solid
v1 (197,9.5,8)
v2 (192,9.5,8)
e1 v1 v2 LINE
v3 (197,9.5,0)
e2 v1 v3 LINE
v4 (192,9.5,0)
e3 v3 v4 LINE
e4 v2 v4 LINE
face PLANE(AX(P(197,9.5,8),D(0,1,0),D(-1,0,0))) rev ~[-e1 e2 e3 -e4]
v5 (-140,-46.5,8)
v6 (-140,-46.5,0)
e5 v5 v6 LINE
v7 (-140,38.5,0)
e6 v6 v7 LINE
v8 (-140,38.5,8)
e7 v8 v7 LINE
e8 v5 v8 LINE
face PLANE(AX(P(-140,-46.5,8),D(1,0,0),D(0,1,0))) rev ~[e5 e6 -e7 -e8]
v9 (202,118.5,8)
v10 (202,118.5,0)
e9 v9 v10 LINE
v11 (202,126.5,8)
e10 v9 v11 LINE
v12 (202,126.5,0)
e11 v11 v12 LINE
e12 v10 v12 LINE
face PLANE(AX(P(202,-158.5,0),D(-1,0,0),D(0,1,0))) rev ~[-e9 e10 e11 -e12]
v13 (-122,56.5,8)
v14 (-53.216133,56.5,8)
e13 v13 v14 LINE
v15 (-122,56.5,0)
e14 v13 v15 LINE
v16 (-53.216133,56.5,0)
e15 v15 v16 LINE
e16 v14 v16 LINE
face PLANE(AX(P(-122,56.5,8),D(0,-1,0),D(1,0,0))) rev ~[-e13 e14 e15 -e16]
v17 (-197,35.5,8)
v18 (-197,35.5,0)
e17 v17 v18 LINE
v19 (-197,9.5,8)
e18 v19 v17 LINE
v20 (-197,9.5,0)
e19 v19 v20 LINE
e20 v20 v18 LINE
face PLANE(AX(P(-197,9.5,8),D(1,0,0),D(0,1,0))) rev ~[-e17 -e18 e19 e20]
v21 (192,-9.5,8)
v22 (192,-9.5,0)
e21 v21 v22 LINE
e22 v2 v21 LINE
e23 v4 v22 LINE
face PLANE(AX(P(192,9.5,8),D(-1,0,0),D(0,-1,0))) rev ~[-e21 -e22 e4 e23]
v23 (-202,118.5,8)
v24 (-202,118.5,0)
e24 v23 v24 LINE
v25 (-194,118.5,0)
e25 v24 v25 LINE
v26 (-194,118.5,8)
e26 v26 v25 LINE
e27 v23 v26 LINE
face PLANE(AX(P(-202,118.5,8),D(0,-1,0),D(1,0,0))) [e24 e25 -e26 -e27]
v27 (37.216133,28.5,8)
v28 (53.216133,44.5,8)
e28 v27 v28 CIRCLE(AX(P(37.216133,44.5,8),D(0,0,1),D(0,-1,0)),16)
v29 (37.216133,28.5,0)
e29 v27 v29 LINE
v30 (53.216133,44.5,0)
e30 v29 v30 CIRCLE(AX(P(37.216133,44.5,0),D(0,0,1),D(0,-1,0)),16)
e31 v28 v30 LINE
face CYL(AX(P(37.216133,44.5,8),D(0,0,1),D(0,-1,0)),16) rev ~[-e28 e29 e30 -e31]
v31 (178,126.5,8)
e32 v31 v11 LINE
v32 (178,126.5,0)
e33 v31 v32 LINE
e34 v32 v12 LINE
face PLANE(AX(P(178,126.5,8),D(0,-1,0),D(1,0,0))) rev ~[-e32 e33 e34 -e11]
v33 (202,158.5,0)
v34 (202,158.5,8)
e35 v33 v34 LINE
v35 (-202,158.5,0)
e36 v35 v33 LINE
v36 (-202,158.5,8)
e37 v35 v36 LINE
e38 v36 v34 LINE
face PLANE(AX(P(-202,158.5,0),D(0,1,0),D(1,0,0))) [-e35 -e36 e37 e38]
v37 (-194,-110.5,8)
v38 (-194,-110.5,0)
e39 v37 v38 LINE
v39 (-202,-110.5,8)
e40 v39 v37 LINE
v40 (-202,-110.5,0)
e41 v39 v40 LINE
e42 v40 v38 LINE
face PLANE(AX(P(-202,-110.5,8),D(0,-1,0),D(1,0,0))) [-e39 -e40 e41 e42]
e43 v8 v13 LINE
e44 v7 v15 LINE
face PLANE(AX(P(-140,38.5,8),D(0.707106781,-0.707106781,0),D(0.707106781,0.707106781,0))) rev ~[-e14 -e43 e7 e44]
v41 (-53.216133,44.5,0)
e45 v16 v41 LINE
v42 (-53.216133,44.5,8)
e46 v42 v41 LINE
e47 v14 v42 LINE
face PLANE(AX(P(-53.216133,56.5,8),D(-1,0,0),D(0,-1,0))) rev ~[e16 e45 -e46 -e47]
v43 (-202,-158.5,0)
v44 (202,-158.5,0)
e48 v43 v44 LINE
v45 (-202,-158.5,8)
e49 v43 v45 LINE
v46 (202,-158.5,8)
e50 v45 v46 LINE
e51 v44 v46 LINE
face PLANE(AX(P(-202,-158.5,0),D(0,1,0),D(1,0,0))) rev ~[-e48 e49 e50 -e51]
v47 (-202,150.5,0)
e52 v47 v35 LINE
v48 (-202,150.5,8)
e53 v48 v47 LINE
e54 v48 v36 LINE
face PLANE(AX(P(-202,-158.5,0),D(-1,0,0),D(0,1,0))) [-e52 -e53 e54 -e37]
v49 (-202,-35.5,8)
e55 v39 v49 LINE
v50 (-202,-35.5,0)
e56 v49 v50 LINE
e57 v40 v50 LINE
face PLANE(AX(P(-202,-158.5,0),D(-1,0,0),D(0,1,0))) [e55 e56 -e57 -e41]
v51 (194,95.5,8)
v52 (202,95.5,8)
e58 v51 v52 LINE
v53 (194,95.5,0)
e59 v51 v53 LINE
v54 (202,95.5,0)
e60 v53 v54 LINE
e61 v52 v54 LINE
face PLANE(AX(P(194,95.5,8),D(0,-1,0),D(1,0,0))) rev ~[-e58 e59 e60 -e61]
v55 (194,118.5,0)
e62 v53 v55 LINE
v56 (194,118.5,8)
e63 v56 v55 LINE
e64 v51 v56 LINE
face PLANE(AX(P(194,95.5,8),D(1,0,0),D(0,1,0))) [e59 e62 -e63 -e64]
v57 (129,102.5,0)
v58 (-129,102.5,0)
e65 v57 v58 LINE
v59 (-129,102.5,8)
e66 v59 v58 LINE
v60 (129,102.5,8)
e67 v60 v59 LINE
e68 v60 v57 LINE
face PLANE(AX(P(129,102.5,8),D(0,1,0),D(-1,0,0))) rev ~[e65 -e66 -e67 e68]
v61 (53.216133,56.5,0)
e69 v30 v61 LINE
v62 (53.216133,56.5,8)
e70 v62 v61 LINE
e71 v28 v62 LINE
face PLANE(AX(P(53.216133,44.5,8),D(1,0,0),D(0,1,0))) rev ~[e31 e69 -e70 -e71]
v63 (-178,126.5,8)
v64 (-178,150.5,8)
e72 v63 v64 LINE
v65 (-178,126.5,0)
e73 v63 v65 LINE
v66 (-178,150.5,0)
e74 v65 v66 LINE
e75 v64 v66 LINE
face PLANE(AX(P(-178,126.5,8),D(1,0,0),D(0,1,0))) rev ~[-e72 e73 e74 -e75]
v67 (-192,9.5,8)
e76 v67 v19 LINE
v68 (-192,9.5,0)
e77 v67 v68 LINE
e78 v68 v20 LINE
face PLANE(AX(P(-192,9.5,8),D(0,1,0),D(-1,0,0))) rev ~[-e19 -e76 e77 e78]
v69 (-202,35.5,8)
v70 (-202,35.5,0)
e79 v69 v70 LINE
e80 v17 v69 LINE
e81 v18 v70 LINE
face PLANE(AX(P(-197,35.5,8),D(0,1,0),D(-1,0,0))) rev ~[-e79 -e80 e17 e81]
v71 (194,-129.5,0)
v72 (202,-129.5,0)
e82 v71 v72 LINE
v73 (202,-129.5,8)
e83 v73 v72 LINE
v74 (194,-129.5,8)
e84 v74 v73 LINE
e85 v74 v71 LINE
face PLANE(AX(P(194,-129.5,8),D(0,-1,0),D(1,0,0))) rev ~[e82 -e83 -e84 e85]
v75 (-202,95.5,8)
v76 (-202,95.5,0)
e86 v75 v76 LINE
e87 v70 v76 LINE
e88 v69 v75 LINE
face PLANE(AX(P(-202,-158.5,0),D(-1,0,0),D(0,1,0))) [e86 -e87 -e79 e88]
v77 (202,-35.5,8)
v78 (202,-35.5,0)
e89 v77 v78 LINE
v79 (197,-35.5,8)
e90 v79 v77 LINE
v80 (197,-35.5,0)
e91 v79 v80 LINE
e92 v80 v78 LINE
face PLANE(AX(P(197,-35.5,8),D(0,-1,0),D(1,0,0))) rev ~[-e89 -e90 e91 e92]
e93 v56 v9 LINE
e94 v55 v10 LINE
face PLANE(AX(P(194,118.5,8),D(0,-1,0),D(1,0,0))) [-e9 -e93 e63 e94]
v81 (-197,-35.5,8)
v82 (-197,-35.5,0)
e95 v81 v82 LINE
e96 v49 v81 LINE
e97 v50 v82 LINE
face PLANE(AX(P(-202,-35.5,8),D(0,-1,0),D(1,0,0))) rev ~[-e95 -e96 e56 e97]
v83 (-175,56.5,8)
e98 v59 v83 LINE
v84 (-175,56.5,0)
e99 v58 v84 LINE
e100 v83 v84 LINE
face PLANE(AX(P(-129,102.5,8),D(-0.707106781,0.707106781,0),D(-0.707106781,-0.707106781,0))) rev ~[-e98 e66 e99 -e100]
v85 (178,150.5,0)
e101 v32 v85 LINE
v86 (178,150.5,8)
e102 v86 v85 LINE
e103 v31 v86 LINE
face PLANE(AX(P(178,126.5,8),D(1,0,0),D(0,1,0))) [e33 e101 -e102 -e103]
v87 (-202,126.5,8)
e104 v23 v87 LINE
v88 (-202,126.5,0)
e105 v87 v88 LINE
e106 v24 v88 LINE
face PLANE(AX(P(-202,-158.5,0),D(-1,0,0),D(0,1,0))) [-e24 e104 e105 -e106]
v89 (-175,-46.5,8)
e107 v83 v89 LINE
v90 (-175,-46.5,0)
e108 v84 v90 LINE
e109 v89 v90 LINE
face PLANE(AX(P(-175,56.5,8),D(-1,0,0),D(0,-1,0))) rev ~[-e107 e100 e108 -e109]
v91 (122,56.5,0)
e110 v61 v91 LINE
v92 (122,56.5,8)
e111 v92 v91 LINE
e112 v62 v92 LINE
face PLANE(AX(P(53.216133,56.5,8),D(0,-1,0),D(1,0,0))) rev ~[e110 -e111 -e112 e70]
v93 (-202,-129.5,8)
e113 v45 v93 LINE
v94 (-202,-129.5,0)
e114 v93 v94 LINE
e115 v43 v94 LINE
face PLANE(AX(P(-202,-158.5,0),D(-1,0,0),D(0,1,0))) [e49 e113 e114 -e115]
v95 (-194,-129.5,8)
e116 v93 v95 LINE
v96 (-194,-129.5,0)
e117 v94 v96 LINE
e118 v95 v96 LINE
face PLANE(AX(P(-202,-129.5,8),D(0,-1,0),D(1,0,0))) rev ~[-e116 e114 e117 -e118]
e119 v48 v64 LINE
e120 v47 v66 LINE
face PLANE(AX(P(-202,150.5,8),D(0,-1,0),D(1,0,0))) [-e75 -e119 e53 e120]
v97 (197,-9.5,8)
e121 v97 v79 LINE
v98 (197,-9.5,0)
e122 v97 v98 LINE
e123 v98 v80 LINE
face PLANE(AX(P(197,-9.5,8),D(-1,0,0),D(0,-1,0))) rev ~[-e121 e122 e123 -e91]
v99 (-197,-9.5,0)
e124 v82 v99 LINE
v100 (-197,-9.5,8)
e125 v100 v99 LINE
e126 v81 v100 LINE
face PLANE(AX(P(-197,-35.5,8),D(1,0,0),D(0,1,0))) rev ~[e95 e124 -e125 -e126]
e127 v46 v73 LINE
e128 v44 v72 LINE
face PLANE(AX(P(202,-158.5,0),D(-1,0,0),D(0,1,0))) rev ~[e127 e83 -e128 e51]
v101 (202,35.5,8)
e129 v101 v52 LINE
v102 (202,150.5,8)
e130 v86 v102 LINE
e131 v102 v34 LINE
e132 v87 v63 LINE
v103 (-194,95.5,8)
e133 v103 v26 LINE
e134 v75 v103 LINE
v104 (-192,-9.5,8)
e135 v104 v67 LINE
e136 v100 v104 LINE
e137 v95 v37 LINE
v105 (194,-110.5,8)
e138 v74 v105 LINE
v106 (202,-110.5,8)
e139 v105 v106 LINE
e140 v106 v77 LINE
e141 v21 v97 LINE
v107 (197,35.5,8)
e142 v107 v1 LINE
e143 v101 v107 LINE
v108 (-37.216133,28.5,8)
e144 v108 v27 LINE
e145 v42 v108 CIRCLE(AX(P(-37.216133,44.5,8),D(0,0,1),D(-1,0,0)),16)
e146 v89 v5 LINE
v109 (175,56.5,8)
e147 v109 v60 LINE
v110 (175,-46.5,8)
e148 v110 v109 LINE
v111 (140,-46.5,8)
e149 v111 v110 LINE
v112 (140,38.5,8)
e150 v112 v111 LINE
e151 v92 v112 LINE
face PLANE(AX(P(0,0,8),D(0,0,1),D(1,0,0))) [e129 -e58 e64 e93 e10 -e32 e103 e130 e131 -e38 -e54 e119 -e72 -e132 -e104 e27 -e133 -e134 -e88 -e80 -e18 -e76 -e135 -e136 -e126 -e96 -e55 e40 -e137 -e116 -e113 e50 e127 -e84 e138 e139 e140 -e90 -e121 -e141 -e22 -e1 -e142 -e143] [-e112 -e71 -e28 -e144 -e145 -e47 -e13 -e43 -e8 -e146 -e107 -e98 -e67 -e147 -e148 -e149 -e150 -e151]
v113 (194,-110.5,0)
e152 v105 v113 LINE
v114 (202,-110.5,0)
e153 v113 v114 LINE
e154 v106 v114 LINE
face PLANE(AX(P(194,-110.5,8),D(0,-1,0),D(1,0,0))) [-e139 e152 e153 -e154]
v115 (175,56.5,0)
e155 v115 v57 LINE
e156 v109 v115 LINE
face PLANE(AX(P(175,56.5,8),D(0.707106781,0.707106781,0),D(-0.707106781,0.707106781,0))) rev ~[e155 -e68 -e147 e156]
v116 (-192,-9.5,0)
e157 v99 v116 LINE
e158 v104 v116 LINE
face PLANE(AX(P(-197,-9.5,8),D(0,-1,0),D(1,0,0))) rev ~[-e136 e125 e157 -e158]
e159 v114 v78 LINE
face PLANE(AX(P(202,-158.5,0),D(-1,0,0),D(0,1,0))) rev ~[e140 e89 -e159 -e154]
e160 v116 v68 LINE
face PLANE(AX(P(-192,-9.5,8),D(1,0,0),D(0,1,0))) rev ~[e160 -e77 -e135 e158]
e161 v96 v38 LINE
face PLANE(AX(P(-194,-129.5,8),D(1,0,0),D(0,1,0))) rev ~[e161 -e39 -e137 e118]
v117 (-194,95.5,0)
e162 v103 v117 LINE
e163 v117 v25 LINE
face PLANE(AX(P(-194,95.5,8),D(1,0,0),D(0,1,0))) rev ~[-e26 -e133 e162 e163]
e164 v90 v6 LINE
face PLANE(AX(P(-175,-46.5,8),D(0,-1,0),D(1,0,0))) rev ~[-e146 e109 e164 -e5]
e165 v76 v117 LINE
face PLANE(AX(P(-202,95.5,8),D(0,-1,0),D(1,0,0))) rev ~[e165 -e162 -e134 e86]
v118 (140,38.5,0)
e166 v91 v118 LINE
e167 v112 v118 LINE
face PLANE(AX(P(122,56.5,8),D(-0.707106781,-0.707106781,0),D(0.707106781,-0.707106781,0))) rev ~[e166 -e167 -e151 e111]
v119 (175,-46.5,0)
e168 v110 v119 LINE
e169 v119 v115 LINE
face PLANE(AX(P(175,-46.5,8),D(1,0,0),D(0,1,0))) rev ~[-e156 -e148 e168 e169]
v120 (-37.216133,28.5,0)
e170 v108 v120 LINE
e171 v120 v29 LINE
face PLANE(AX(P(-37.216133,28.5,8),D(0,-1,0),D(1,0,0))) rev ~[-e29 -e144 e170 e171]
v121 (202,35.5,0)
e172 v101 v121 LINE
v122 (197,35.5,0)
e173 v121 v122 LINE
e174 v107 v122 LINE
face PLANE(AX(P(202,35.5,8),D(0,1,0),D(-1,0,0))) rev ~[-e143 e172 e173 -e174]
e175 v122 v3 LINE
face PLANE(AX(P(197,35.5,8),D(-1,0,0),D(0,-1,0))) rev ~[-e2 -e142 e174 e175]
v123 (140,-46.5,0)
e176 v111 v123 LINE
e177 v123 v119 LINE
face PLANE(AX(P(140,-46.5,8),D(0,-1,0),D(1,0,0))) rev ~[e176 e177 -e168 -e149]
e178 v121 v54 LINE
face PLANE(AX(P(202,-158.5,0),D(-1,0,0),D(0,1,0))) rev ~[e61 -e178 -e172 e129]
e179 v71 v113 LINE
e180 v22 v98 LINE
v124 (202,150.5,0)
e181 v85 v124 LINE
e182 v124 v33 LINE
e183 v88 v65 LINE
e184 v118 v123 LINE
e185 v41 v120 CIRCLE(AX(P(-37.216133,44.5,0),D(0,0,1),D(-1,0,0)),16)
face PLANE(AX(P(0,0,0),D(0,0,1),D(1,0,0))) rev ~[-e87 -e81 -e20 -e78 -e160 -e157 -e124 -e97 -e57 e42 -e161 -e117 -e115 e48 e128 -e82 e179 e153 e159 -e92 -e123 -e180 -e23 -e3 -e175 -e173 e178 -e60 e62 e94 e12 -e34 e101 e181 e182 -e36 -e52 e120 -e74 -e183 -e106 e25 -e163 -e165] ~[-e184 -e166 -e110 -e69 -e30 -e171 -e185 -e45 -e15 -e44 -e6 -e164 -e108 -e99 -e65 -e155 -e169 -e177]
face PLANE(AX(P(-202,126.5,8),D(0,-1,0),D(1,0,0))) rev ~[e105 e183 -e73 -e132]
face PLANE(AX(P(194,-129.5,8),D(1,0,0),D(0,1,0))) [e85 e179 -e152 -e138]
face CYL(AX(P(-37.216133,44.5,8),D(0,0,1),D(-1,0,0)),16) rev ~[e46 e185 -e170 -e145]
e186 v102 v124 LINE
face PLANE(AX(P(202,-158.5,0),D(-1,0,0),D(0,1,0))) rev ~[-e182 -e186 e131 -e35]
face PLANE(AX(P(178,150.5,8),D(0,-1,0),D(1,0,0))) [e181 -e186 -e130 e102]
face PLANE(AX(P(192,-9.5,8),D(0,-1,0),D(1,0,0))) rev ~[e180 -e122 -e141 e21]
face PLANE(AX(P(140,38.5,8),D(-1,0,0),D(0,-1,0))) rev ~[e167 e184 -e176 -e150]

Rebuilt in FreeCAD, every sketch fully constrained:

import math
import FreeCAD as App
import Part
import Sketcher


def add_polygon(sketch, points):
    """Adds a closed chain of lines whose ends are joined by coincident constraints."""
    first, n = sketch.GeometryCount, len(points)
    for a, b in zip(points, points[1:] + points[:1]):
        sketch.addGeometry(Part.LineSegment(App.Vector(*a, 0), App.Vector(*b, 0)), False)
    for i in range(n):
        sketch.addConstraint(Sketcher.Constraint("Coincident", first + i, 2, first + (i + 1) % n, 1))

doc = App.newDocument("Part")
body = doc.addObject("PartDesign::Body", "Body")

# Sketch on XY plane
sketch1 = doc.addObject("Sketcher::SketchObject", "Sketch")
body.addObject(sketch1)
sketch1.AttachmentSupport = (doc.XY_Plane, [""])
sketch1.MapMode = "FlatFace"
add_polygon(sketch1, [(-202, 158), (-202, -158), (202, -158), (202, 158)])  # lines 0-3
sketch1.addConstraint([
    Sketcher.Constraint("Vertical", 0),
    Sketcher.Constraint("Horizontal", 1),
    Sketcher.Constraint("Vertical", 2),
    Sketcher.Constraint("Horizontal", 3),
    Sketcher.Constraint("Symmetric", 0, 2, 2, 2, -1, 1),
    Sketcher.Constraint("DistanceX", 1, 1, 1, 2, 404.0),
    Sketcher.Constraint("DistanceY", 0, 2, 0, 1, 317.0),
])
pad1 = doc.addObject("PartDesign::Pad", "Pad")
body.addObject(pad1)
pad1.Profile = sketch1
pad1.Length = 8

# Sketch on XY plane
sketch2 = doc.addObject("Sketcher::SketchObject", "Sketch001")
body.addObject(sketch2)
sketch2.AttachmentSupport = (doc.XY_Plane, [""])
sketch2.MapMode = "FlatFace"
sketch2.AttachmentOffset = App.Placement(App.Vector(0, 0, 8), App.Rotation())
add_polygon(sketch2, [(-202, -110), (-202, -130), (-194, -130), (-194, -110)])  # lines 0-3
add_polygon(sketch2, [(-202, 36), (-202, -36), (-197, -36), (-197, -10), (-192, -10), (-192, 10), (-197, 10), (-197, 36)])  # lines 4-11
add_polygon(sketch2, [(-202, 118), (-202, 96), (-194, 96), (-194, 118)])  # lines 12-15
add_polygon(sketch2, [(-202, 150), (-202, 126), (-178, 126), (-178, 150)])  # lines 16-19
add_polygon(sketch2, [(192, -10), (197, -10), (197, -36), (202, -36), (202, 36), (197, 36), (197, 10), (192, 10)])  # lines 20-27
add_polygon(sketch2, [(194, -110), (194, -130), (202, -130), (202, -110)])  # lines 28-31
add_polygon(sketch2, [(194, 118), (194, 96), (202, 96), (202, 118)])  # lines 32-35
add_polygon(sketch2, [(178, 150), (178, 126), (202, 126), (202, 150)])  # lines 36-39
sketch2.addConstraint([
    Sketcher.Constraint("Vertical", 0),
    Sketcher.Constraint("Horizontal", 1),
    Sketcher.Constraint("Vertical", 2),
    Sketcher.Constraint("Horizontal", 3),
    Sketcher.Constraint("Vertical", 4),
    Sketcher.Constraint("Horizontal", 5),
    Sketcher.Constraint("Vertical", 6),
    Sketcher.Constraint("Horizontal", 7),
    Sketcher.Constraint("Vertical", 8),
    Sketcher.Constraint("Horizontal", 9),
    Sketcher.Constraint("Vertical", 10),
    Sketcher.Constraint("Horizontal", 11),
    Sketcher.Constraint("Vertical", 12),
    Sketcher.Constraint("Horizontal", 13),
    Sketcher.Constraint("Vertical", 14),
    Sketcher.Constraint("Horizontal", 15),
    Sketcher.Constraint("Vertical", 16),
    Sketcher.Constraint("Horizontal", 17),
    Sketcher.Constraint("Vertical", 18),
    Sketcher.Constraint("Horizontal", 19),
    Sketcher.Constraint("Horizontal", 20),
    Sketcher.Constraint("Vertical", 21),
    Sketcher.Constraint("Horizontal", 22),
    Sketcher.Constraint("Vertical", 23),
    Sketcher.Constraint("Horizontal", 24),
    Sketcher.Constraint("Vertical", 25),
    Sketcher.Constraint("Horizontal", 26),
    Sketcher.Constraint("Vertical", 27),
    Sketcher.Constraint("Vertical", 28),
    Sketcher.Constraint("Horizontal", 29),
    Sketcher.Constraint("Vertical", 30),
    Sketcher.Constraint("Horizontal", 31),
    Sketcher.Constraint("Vertical", 32),
    Sketcher.Constraint("Horizontal", 33),
    Sketcher.Constraint("Vertical", 34),
    Sketcher.Constraint("Horizontal", 35),
    Sketcher.Constraint("Vertical", 36),
    Sketcher.Constraint("Horizontal", 37),
    Sketcher.Constraint("Vertical", 38),
    Sketcher.Constraint("Horizontal", 39),
    Sketcher.Constraint("Symmetric", 9, 2, 20, 2, -1, 1),
    Sketcher.Constraint("Symmetric", 11, 2, 22, 2, -1, 1),
    Sketcher.Constraint("Symmetric", 5, 2, 24, 2, -1, 1),
    Sketcher.Constraint("Symmetric", 7, 2, 26, 2, -1, 1),
    Sketcher.Constraint("Symmetric", 6, 2, 20, 2, -2),
    Sketcher.Constraint("Symmetric", 1, 2, 28, 2, -2),
    Sketcher.Constraint("Symmetric", 3, 2, 30, 2, -2),
    Sketcher.Constraint("Symmetric", 13, 2, 32, 2, -2),
    Sketcher.Constraint("Symmetric", 15, 2, 34, 2, -2),
    Sketcher.Constraint("Symmetric", 17, 2, 36, 2, -2),
    Sketcher.Constraint("Symmetric", 19, 2, 38, 2, -2),
    Sketcher.Constraint("Horizontal", 5, 2, 21, 2),
    Sketcher.Constraint("Vertical", 3, 2, 4, 2),
    Sketcher.Constraint("Vertical", 11, 2, 12, 2),
    Sketcher.Constraint("Vertical", 2, 2, 13, 2),
    Sketcher.Constraint("Vertical", 15, 2, 16, 2),
    Sketcher.Constraint("Equal", 5, 7),
    Sketcher.Constraint("Equal", 2, 8),
    Sketcher.Constraint("Equal", 39, 16),
    Sketcher.Constraint("DistanceX", 1, 1, 1, 2, 8.0),
    Sketcher.Constraint("DistanceX", 5, 1, 5, 2, 5.0),
    Sketcher.Constraint("DistanceX", 17, 1, 17, 2, 24.0),
    Sketcher.Constraint("DistanceY", 0, 2, 0, 1, 19.0),
    Sketcher.Constraint("DistanceY", 4, 2, 4, 1, 71.0),
    Sketcher.Constraint("DistanceY", 12, 2, 12, 1, 23.0),
    Sketcher.Constraint("DistanceX", 0, 2, -1, 1, 202.0),
    Sketcher.Constraint("DistanceY", 3, 2, 4, 2, 75.0),
    Sketcher.Constraint("DistanceY", 11, 2, 12, 2, 60.0),
    Sketcher.Constraint("DistanceY", 15, 2, 16, 2, 8.0),
])
pocket1 = doc.addObject("PartDesign::Pocket", "Pocket")
body.addObject(pocket1)
pocket1.Profile = sketch2
pocket1.Length = 8

# Sketch on XY plane
sketch3 = doc.addObject("Sketcher::SketchObject", "Sketch002")
body.addObject(sketch3)
sketch3.AttachmentSupport = (doc.XY_Plane, [""])
sketch3.MapMode = "FlatFace"
sketch3.AttachmentOffset = App.Placement(App.Vector(0, 0, 8), App.Rotation())
sketch3.addGeometry([
    Part.LineSegment(App.Vector(-175, 56, 0), App.Vector(-175, -46, 0)),  # 0
    Part.LineSegment(App.Vector(-175, -46, 0), App.Vector(-140, -46, 0)),  # 1
    Part.LineSegment(App.Vector(-140, -46, 0), App.Vector(-140, 38, 0)),  # 2
    Part.LineSegment(App.Vector(-140, 38, 0), App.Vector(-122, 56, 0)),  # 3
    Part.LineSegment(App.Vector(-122, 56, 0), App.Vector(-53, 56, 0)),  # 4
    Part.LineSegment(App.Vector(-53, 56, 0), App.Vector(-53, 44, 0)),  # 5
    Part.ArcOfCircle(Part.Circle(App.Vector(-37, 44, 0), App.Vector(0, 0, 1), 16), math.radians(180), math.radians(270)),  # 6
    Part.LineSegment(App.Vector(-37, 28, 0), App.Vector(37, 28, 0)),  # 7
    Part.ArcOfCircle(Part.Circle(App.Vector(37, 44, 0), App.Vector(0, 0, 1), 16), math.radians(-90), math.radians(0)),  # 8
    Part.LineSegment(App.Vector(53, 44, 0), App.Vector(53, 56, 0)),  # 9
    Part.LineSegment(App.Vector(53, 56, 0), App.Vector(122, 56, 0)),  # 10
    Part.LineSegment(App.Vector(122, 56, 0), App.Vector(140, 38, 0)),  # 11
    Part.LineSegment(App.Vector(140, 38, 0), App.Vector(140, -46, 0)),  # 12
    Part.LineSegment(App.Vector(140, -46, 0), App.Vector(175, -46, 0)),  # 13
    Part.LineSegment(App.Vector(175, -46, 0), App.Vector(175, 56, 0)),  # 14
    Part.LineSegment(App.Vector(175, 56, 0), App.Vector(129, 102, 0)),  # 15
    Part.LineSegment(App.Vector(129, 102, 0), App.Vector(-129, 102, 0)),  # 16
    Part.LineSegment(App.Vector(-129, 102, 0), App.Vector(-175, 56, 0)),  # 17
], False)
sketch3.addConstraint([
    Sketcher.Constraint("Coincident", 0, 2, 1, 1),
    Sketcher.Constraint("Coincident", 1, 2, 2, 1),
    Sketcher.Constraint("Coincident", 2, 2, 3, 1),
    Sketcher.Constraint("Coincident", 3, 2, 4, 1),
    Sketcher.Constraint("Coincident", 4, 2, 5, 1),
    Sketcher.Constraint("Tangent", 5, 2, 6, 1),
    Sketcher.Constraint("Tangent", 6, 2, 7, 1),
    Sketcher.Constraint("Tangent", 7, 2, 8, 1),
    Sketcher.Constraint("Tangent", 8, 2, 9, 1),
    Sketcher.Constraint("Coincident", 9, 2, 10, 1),
    Sketcher.Constraint("Coincident", 10, 2, 11, 1),
    Sketcher.Constraint("Coincident", 11, 2, 12, 1),
    Sketcher.Constraint("Coincident", 12, 2, 13, 1),
    Sketcher.Constraint("Coincident", 13, 2, 14, 1),
    Sketcher.Constraint("Coincident", 14, 2, 15, 1),
    Sketcher.Constraint("Coincident", 15, 2, 16, 1),
    Sketcher.Constraint("Coincident", 16, 2, 17, 1),
    Sketcher.Constraint("Coincident", 17, 2, 0, 1),
    Sketcher.Constraint("Vertical", 0),
    Sketcher.Constraint("Horizontal", 1),
    Sketcher.Constraint("Vertical", 2),
    Sketcher.Constraint("Horizontal", 4),
    Sketcher.Constraint("Vertical", 5),
    Sketcher.Constraint("Horizontal", 7),
    Sketcher.Constraint("Vertical", 9),
    Sketcher.Constraint("Horizontal", 10),
    Sketcher.Constraint("Vertical", 12),
    Sketcher.Constraint("Horizontal", 13),
    Sketcher.Constraint("Vertical", 14),
    Sketcher.Constraint("Horizontal", 16),
    Sketcher.Constraint("Equal", 6, 8),
    Sketcher.Constraint("Symmetric", 4, 2, 9, 2, -2),
    Sketcher.Constraint("Symmetric", 2, 2, 11, 2, -2),
    Sketcher.Constraint("Symmetric", 0, 2, 13, 2, -2),
    Sketcher.Constraint("Perpendicular", 3, 11),
    Sketcher.Constraint("Parallel", 11, 15),
    Sketcher.Constraint("Perpendicular", 15, 17),
    Sketcher.Constraint("Horizontal", 10, 2, 14, 2),
    Sketcher.Constraint("Horizontal", 14, 2, 17, 2),
    Sketcher.Constraint("Equal", 4, 10),
    Sketcher.Constraint("Radius", 6, 16.0),
    Sketcher.Constraint("DistanceX", 1, 1, 1, 2, 35.0),
    Sketcher.Constraint("DistanceX", 16, 2, 16, 1, 258.0),
    Sketcher.Constraint("DistanceY", 0, 2, 0, 1, 103.0),
    Sketcher.Constraint("DistanceY", 2, 1, 2, 2, 85.0),
    Sketcher.Constraint("DistanceY", 5, 2, 5, 1, 12.0),
    Sketcher.Constraint("DistanceX", 0, 2, -1, 1, 175.0),
    Sketcher.Constraint("DistanceY", -1, 1, 6, 3, 44.5),
    Sketcher.Constraint("DistanceX", 4, 1, 4, 2, 68.783867),
])
pocket2 = doc.addObject("PartDesign::Pocket", "Pocket001")
body.addObject(pocket2)
pocket2.Profile = sketch3
pocket2.Type = "ThroughAll"

doc.recompute()
